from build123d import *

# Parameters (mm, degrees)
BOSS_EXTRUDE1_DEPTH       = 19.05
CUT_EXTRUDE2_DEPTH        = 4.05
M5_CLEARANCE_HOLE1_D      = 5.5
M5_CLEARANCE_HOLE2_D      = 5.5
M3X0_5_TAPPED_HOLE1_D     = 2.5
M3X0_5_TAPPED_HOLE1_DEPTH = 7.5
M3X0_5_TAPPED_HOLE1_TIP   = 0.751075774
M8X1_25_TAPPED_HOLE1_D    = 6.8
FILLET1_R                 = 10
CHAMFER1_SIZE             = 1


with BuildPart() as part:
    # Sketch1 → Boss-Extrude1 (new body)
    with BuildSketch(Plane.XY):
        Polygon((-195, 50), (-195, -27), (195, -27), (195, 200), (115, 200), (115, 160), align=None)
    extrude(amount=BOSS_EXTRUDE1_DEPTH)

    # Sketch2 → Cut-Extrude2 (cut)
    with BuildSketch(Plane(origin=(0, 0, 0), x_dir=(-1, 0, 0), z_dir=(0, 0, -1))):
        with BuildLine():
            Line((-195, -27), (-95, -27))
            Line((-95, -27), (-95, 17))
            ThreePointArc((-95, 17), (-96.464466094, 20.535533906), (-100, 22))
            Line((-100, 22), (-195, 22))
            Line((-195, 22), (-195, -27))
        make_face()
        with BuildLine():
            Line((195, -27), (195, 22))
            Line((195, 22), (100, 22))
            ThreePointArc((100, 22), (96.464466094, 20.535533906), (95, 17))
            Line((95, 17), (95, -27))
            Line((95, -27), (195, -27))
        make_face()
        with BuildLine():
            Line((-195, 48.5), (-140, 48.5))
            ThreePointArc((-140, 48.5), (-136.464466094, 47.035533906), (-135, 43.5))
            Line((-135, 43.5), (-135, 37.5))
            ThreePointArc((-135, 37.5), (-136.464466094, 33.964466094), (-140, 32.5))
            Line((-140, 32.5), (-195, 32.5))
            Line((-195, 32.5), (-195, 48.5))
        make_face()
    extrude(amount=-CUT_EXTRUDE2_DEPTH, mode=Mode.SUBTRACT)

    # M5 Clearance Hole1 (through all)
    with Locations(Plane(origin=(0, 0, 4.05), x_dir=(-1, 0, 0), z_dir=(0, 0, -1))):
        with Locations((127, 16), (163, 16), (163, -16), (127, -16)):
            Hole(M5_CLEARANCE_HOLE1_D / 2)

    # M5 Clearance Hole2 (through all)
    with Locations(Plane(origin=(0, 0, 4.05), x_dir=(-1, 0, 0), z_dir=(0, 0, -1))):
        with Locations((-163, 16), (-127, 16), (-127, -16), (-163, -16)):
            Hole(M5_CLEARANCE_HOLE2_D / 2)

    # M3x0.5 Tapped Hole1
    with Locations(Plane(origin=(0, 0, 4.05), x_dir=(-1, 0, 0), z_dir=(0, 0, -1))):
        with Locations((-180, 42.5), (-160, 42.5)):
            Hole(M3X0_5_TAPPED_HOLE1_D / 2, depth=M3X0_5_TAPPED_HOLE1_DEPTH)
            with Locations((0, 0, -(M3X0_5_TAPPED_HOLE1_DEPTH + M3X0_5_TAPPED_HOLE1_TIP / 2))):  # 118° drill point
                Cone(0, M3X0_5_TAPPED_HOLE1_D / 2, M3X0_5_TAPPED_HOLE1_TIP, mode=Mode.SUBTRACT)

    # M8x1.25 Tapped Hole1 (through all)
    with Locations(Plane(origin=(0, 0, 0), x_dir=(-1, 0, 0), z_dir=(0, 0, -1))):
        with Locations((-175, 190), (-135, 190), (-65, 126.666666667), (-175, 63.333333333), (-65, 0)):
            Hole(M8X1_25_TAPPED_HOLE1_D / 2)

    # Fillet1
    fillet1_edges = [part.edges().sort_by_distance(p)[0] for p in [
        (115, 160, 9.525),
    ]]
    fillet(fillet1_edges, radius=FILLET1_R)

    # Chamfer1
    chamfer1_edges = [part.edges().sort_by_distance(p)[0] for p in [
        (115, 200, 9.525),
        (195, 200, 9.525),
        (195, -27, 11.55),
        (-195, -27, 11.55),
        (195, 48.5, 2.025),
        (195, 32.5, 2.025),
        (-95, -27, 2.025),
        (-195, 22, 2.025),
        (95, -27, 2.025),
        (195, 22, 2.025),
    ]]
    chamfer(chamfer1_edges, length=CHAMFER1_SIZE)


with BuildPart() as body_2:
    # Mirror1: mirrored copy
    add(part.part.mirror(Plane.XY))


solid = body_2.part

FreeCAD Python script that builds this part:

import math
import FreeCAD as App
import Part
import Sketcher
Q = App.Units.Quantity


def edges_at(feature, points):
    """Names of the edges that pass closest to the given points."""
    edges = feature.Shape.Edges
    near = lambda p: min(range(len(edges)), key=lambda i: edges[i].distToShape(Part.Vertex(*p))[0])
    return sorted({f"Edge{near(p) + 1}" for p in points})

doc = App.newDocument("Part")
body = doc.addObject("PartDesign::Body", "Body")

# Sketch on XY plane
sketch1 = body.newObject("Sketcher::SketchObject", "Sketch")
sketch1.AttachmentSupport = (doc.getObject("XY_Plane"), [""])
sketch1.MapMode = "FlatFace"
sketch1.addGeometry([
    Part.LineSegment(App.Vector(-195, 50, 0), App.Vector(-195, -27, 0)),  # 0
    Part.LineSegment(App.Vector(-195, -27, 0), App.Vector(195, -27, 0)),  # 1
    Part.LineSegment(App.Vector(195, -27, 0), App.Vector(195, 200, 0)),  # 2
    Part.LineSegment(App.Vector(195, 200, 0), App.Vector(115, 200, 0)),  # 3
    Part.LineSegment(App.Vector(115, 200, 0), App.Vector(115, 160, 0)),  # 4
    Part.LineSegment(App.Vector(115, 160, 0), App.Vector(-195, 50, 0)),  # 5
], False)
sketch1.addConstraint([
    Sketcher.Constraint("Coincident", 0, 2, 1, 1),
    Sketcher.Constraint("Coincident", 1, 2, 2, 1),
    Sketcher.Constraint("Coincident", 2, 2, 3, 1),
    Sketcher.Constraint("Coincident", 3, 2, 4, 1),
    Sketcher.Constraint("Coincident", 4, 2, 5, 1),
    Sketcher.Constraint("Coincident", 5, 2, 0, 1),
    Sketcher.Constraint("Vertical", 0),
    Sketcher.Constraint("Horizontal", 1),
    Sketcher.Constraint("Vertical", 2),
    Sketcher.Constraint("Horizontal", 3),
    Sketcher.Constraint("Vertical", 4),
    Sketcher.Constraint("DistanceX", 1, 1, 1, 2, Q("390 mm")),
    Sketcher.Constraint("DistanceX", 3, 2, 3, 1, Q("80 mm")),
    Sketcher.Constraint("DistanceY", 0, 2, 0, 1, Q("77 mm")),
    Sketcher.Constraint("DistanceY", 2, 1, 2, 2, Q("227 mm")),
    Sketcher.Constraint("DistanceY", 4, 2, 4, 1, Q("40 mm")),
    Sketcher.Constraint("DistanceX", 0, 2, -1, 1, Q("195 mm")),
    Sketcher.Constraint("DistanceY", 0, 2, -1, 1, Q("27 mm")),
])
pad1 = body.newObject("PartDesign::Pad", "Pad")
pad1.Profile = sketch1
pad1.Length = 19.05

# Sketch on XY plane
sketch2 = body.newObject("Sketcher::SketchObject", "Sketch001")
sketch2.AttachmentSupport = (doc.getObject("XY_Plane"), [""])
sketch2.MapMode = "FlatFace"
sketch2.addGeometry([
    Part.LineSegment(App.Vector(195, -27, 0), App.Vector(95, -27, 0)),  # 0
    Part.LineSegment(App.Vector(95, -27, 0), App.Vector(95, 17, 0)),  # 1
    Part.ArcOfCircle(Part.Circle(App.Vector(100, 17, 0), App.Vector(0, 0, 1), 5), math.radians(90), math.radians(180)),  # 2
    Part.LineSegment(App.Vector(100, 22, 0), App.Vector(195, 22, 0)),  # 3
    Part.LineSegment(App.Vector(195, 22, 0), App.Vector(195, -27, 0)),  # 4
    Part.LineSegment(App.Vector(-195, -27, 0), App.Vector(-195, 22, 0)),  # 5
    Part.LineSegment(App.Vector(-195, 22, 0), App.Vector(-100, 22, 0)),  # 6
    Part.ArcOfCircle(Part.Circle(App.Vector(-100, 17, 0), App.Vector(0, 0, 1), 5), math.radians(0), math.radians(90)),  # 7
    Part.LineSegment(App.Vector(-95, 17, 0), App.Vector(-95, -27, 0)),  # 8
    Part.LineSegment(App.Vector(-95, -27, 0), App.Vector(-195, -27, 0)),  # 9
    Part.LineSegment(App.Vector(140, 48.5, 0), App.Vector(195, 48.5, 0)),  # 10
    Part.LineSegment(App.Vector(195, 48.5, 0), App.Vector(195, 32.5, 0)),  # 11
    Part.LineSegment(App.Vector(195, 32.5, 0), App.Vector(140, 32.5, 0)),  # 12
    Part.ArcOfCircle(Part.Circle(App.Vector(140, 37.5, 0), App.Vector(0, 0, 1), 5), math.radians(180), math.radians(270)),  # 13
    Part.LineSegment(App.Vector(135, 37.5, 0), App.Vector(135, 43.5, 0)),  # 14
    Part.ArcOfCircle(Part.Circle(App.Vector(140, 43.5, 0), App.Vector(0, 0, 1), 5), math.radians(90), math.radians(180)),  # 15
], False)
sketch2.addConstraint([
    Sketcher.Constraint("Coincident", 0, 2, 1, 1),
    Sketcher.Constraint("Tangent", 1, 2, 2, 2),
    Sketcher.Constraint("Tangent", 2, 1, 3, 1),
    Sketcher.Constraint("Coincident", 3, 2, 4, 1),
    Sketcher.Constraint("Coincident", 4, 2, 0, 1),
    Sketcher.Constraint("Coincident", 5, 2, 6, 1),
    Sketcher.Constraint("Tangent", 6, 2, 7, 2),
    Sketcher.Constraint("Tangent", 7, 1, 8, 1),
    Sketcher.Constraint("Coincident", 8, 2, 9, 1),
    Sketcher.Constraint("Coincident", 9, 2, 5, 1),
    Sketcher.Constraint("Coincident", 10, 2, 11, 1),
    Sketcher.Constraint("Coincident", 11, 2, 12, 1),
    Sketcher.Constraint("Tangent", 12, 2, 13, 2),
    Sketcher.Constraint("Tangent", 13, 1, 14, 1),
    Sketcher.Constraint("Tangent", 14, 2, 15, 2),
    Sketcher.Constraint("Tangent", 15, 1, 10, 1),
    Sketcher.Constraint("Horizontal", 0),
    Sketcher.Constraint("Vertical", 1),
    Sketcher.Constraint("Horizontal", 3),
    Sketcher.Constraint("Vertical", 4),
    Sketcher.Constraint("Vertical", 5),
    Sketcher.Constraint("Horizontal", 6),
    Sketcher.Constraint("Vertical", 8),
    Sketcher.Constraint("Horizontal", 9),
    Sketcher.Constraint("Horizontal", 10),
    Sketcher.Constraint("Vertical", 11),
    Sketcher.Constraint("Horizontal", 12),
    Sketcher.Constraint("Vertical", 14),
    Sketcher.Constraint("Equal", 2, 7),
    Sketcher.Constraint("Equal", 7, 13),
    Sketcher.Constraint("Equal", 13, 15),
    Sketcher.Constraint("Symmetric", 2, 3, 7, 3, -2),
    Sketcher.Constraint("Symmetric", 4, 2, 9, 2, -2),
    Sketcher.Constraint("Vertical", 4, 2, 10, 2),
    Sketcher.Constraint("Radius", 2, Q("5 mm")),
    Sketcher.Constraint("DistanceX", 0, 2, 0, 1, Q("100 mm")),
    Sketcher.Constraint("DistanceX", 10, 1, 10, 2, Q("55 mm")),
    Sketcher.Constraint("DistanceY", 1, 1, 1, 2, Q("44 mm")),
    Sketcher.Constraint("DistanceY", 11, 2, 11, 1, Q("16 mm")),
    Sketcher.Constraint("DistanceX", -1, 1, 2, 3, Q("100 mm")),
    Sketcher.Constraint("DistanceY", -1, 1, 2, 3, Q("17 mm")),
    Sketcher.Constraint("DistanceY", -1, 1, 13, 3, Q("37.5 mm")),
])
pocket1 = body.newObject("PartDesign::Pocket", "Pocket")
pocket1.Profile = sketch2
pocket1.Length = 4.05
pocket1.Reversed = True

# Sketch on XY plane
sketch3 = body.newObject("Sketcher::SketchObject", "Sketch002")
sketch3.AttachmentSupport = (doc.getObject("XY_Plane"), [""])
sketch3.MapMode = "FlatFace"
sketch3.AttachmentOffset = App.Placement(App.Vector(0, 0, 4.05), App.Rotation())
sketch3.addGeometry([
    Part.Circle(App.Vector(-127, 16, 0), App.Vector(0, 0, 1), 2.75),
    Part.Circle(App.Vector(-163, 16, 0), App.Vector(0, 0, 1), 2.75),
    Part.Circle(App.Vector(-163, -16, 0), App.Vector(0, 0, 1), 2.75),
    Part.Circle(App.Vector(-127, -16, 0), App.Vector(0, 0, 1), 2.75),
], False)
sketch3.addConstraint([
    Sketcher.Constraint("Equal", 0, 1),
    Sketcher.Constraint("Equal", 1, 2),
    Sketcher.Constraint("Equal", 2, 3),
    Sketcher.Constraint("Symmetric", 1, 3, 2, 3, -1),
    Sketcher.Constraint("Symmetric", 0, 3, 3, 3, -1),
    Sketcher.Constraint("Horizontal", 0, 3, 1, 3),
    Sketcher.Constraint("Diameter", 0, Q("5.5 mm")),
    Sketcher.Constraint("DistanceX", 0, 3, -1, 1, Q("127 mm")),
    Sketcher.Constraint("DistanceY", -1, 1, 0, 3, Q("16 mm")),
    Sketcher.Constraint("DistanceX", 1, 3, -1, 1, Q("163 mm")),
])
doc.recompute()
hole = body.newObject("PartDesign::Hole", "Hole")
hole.Profile = sketch3
hole.ThreadType = "None"
hole.Diameter = 5.5
hole.DepthType = "ThroughAll"
hole.Reversed = True

# Sketch on XY plane
sketch4 = body.newObject("Sketcher::SketchObject", "Sketch003")
sketch4.AttachmentSupport = (doc.getObject("XY_Plane"), [""])
sketch4.MapMode = "FlatFace"
sketch4.AttachmentOffset = App.Placement(App.Vector(0, 0, 4.05), App.Rotation())
sketch4.addGeometry([
    Part.Circle(App.Vector(163, 16, 0), App.Vector(0, 0, 1), 2.75),
    Part.Circle(App.Vector(127, 16, 0), App.Vector(0, 0, 1), 2.75),
    Part.Circle(App.Vector(127, -16, 0), App.Vector(0, 0, 1), 2.75),
    Part.Circle(App.Vector(163, -16, 0), App.Vector(0, 0, 1), 2.75),
], False)
sketch4.addConstraint([
    Sketcher.Constraint("Equal", 0, 1),
    Sketcher.Constraint("Equal", 1, 2),
    Sketcher.Constraint("Equal", 2, 3),
    Sketcher.Constraint("Symmetric", 1, 3, 2, 3, -1),
    Sketcher.Constraint("Symmetric", 0, 3, 3, 3, -1),
    Sketcher.Constraint("Horizontal", 0, 3, 1, 3),
    Sketcher.Constraint("Diameter", 0, Q("5.5 mm")),
    Sketcher.Constraint("DistanceX", -1, 1, 0, 3, Q("163 mm")),
    Sketcher.Constraint("DistanceY", -1, 1, 0, 3, Q("16 mm")),
    Sketcher.Constraint("DistanceX", -1, 1, 1, 3, Q("127 mm")),
])
doc.recompute()
hole2 = body.newObject("PartDesign::Hole", "Hole001")
hole2.Profile = sketch4
hole2.ThreadType = "None"
hole2.Diameter = 5.5
hole2.DepthType = "ThroughAll"
hole2.Reversed = True

# Sketch on XY plane
sketch5 = body.newObject("Sketcher::SketchObject", "Sketch004")
sketch5.AttachmentSupport = (doc.getObject("XY_Plane"), [""])
sketch5.MapMode = "FlatFace"
sketch5.AttachmentOffset = App.Placement(App.Vector(0, 0, 4.05), App.Rotation())
sketch5.addGeometry([
    Part.Circle(App.Vector(180, 42.5, 0), App.Vector(0, 0, 1), 1.25),
    Part.Circle(App.Vector(160, 42.5, 0), App.Vector(0, 0, 1), 1.25),
], False)
sketch5.addConstraint([
    Sketcher.Constraint("Equal", 0, 1),
    Sketcher.Constraint("Horizontal", 0, 3, 1, 3),
    Sketcher.Constraint("Diameter", 0, Q("2.5 mm")),
    Sketcher.Constraint("DistanceX", -1, 1, 0, 3, Q("180 mm")),
    Sketcher.Constraint("DistanceX", -1, 1, 1, 3, Q("160 mm")),
    Sketcher.Constraint("DistanceY", -1, 1, 0, 3, Q("42.5 mm")),
])
doc.recompute()
hole3 = body.newObject("PartDesign::Hole", "Hole002")
hole3.Profile = sketch5
hole3.ThreadType = "None"
hole3.Diameter = 2.5
hole3.DepthType = "Dimension"
hole3.Depth = 7.5
hole3.DrillPoint = "Angled"
hole3.DrillPointAngle = 118
hole3.Reversed = True

# Sketch on XY plane
sketch6 = body.newObject("Sketcher::SketchObject", "Sketch005")
sketch6.AttachmentSupport = (doc.getObject("XY_Plane"), [""])
sketch6.MapMode = "FlatFace"
sketch6.addGeometry([
    Part.Circle(App.Vector(175, 190, 0), App.Vector(0, 0, 1), 3.4),  # 0
    Part.Circle(App.Vector(135, 190, 0), App.Vector(0, 0, 1), 3.4),  # 1
    Part.Circle(App.Vector(65, 126.666667, 0), App.Vector(0, 0, 1), 3.4),  # 2
    Part.Circle(App.Vector(175, 63.333333, 0), App.Vector(0, 0, 1), 3.4),  # 3
    Part.Circle(App.Vector(65, 0, 0), App.Vector(0, 0, 1), 3.4),  # 4
], False)
sketch6.addConstraint([
    Sketcher.Constraint("Equal", 0, 1),
    Sketcher.Constraint("Equal", 1, 2),
    Sketcher.Constraint("Equal", 2, 3),
    Sketcher.Constraint("Equal", 3, 4),
    Sketcher.Constraint("PointOnObject", 4, 3, -1),
    Sketcher.Constraint("Horizontal", 0, 3, 1, 3),
    Sketcher.Constraint("Vertical", 0, 3, 3, 3),
    Sketcher.Constraint("Vertical", 2, 3, 4, 3),
    Sketcher.Constraint("Diameter", 0, Q("6.8 mm")),
    Sketcher.Constraint("DistanceX", -1, 1, 0, 3, Q("175 mm")),
    Sketcher.Constraint("DistanceY", -1, 1, 0, 3, Q("190 mm")),
    Sketcher.Constraint("DistanceX", -1, 1, 1, 3, Q("135 mm")),
    Sketcher.Constraint("DistanceX", -1, 1, 2, 3, Q("65 mm")),
    Sketcher.Constraint("DistanceY", -1, 1, 2, 3, Q("126.666667 mm")),
    Sketcher.Constraint("DistanceY", -1, 1, 3, 3, Q("63.333333 mm")),
])
doc.recompute()
hole4 = body.newObject("PartDesign::Hole", "Hole003")
hole4.Profile = sketch6
hole4.ThreadType = "None"
hole4.Diameter = 6.8
hole4.DepthType = "ThroughAll"
hole4.Reversed = True
doc.recompute()

fillet = body.newObject("PartDesign::Fillet", "Fillet")
fillet.Base = (hole4, edges_at(hole4, [(115, 160, 9.525)]))
fillet.Radius = 10
doc.recompute()

chamfer = body.newObject("PartDesign::Chamfer", "Chamfer")
chamfer.Base = (fillet, edges_at(fillet, [
    (115, 200, 9.525),
    (195, 200, 9.525),
    (195, -27, 11.55),
    (-195, -27, 11.55),
    (195, 48.5, 2.025),
    (195, 32.5, 2.025),
    (-95, -27, 2.025),
    (-195, 22, 2.025),
    (95, -27, 2.025),
    (195, 22, 2.025),
]))
chamfer.Size = 1
body2 = doc.addObject("PartDesign::Body", "Body001")
doc.recompute()

mirroring = doc.addObject("Part::Mirroring", "Mirroring")
mirroring.Source = body
mirroring.Base = App.Vector(0, 0, 0)
mirroring.Normal = App.Vector(0, 0, 1)
body2.BaseFeature = mirroring
doc.recompute()
body.Visibility = False
mirroring.Visibility = False

doc.recompute()
